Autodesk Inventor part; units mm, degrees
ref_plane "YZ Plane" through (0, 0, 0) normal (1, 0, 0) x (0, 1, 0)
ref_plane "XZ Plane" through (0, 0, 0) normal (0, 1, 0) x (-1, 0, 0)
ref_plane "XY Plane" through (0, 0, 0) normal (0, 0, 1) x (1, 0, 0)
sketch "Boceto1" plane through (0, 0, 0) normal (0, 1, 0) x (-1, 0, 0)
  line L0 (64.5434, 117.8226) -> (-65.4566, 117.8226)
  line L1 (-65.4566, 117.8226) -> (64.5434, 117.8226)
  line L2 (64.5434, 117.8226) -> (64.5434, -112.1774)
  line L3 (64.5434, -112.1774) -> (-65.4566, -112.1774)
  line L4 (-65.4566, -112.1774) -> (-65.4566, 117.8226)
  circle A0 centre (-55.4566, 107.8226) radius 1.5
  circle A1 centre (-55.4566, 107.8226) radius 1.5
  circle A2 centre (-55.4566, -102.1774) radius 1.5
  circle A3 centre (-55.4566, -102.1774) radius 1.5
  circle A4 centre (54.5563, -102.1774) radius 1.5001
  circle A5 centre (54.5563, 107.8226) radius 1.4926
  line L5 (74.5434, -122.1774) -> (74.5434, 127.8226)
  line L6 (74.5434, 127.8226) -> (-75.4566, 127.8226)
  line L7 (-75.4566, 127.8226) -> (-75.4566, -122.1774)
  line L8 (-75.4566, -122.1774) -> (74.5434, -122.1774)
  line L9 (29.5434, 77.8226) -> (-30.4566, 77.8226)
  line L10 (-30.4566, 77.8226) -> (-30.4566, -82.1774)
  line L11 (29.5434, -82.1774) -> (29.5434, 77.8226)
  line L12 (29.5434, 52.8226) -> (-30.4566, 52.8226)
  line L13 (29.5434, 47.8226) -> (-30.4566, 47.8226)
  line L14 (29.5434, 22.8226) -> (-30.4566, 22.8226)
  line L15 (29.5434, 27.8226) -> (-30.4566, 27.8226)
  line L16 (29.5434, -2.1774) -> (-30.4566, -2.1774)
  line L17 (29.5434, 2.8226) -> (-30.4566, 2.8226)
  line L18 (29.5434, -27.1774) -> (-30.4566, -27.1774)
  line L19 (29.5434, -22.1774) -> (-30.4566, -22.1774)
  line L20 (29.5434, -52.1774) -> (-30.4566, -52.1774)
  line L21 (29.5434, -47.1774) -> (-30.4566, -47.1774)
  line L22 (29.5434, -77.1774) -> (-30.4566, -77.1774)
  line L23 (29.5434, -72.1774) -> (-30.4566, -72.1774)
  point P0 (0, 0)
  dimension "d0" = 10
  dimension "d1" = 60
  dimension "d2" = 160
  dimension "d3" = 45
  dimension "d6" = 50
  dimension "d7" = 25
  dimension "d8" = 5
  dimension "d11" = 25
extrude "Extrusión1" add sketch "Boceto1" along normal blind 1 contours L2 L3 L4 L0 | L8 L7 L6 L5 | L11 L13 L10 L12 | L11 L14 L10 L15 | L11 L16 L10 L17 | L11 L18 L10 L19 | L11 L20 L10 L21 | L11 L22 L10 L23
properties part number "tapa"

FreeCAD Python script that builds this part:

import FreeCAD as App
import Part
import Sketcher
from FreeCAD import Vector
Q = App.Units.Quantity

doc = App.newDocument("Part")
body = doc.addObject("PartDesign::Body", "Body")

# Sketch on XZ plane
sketch1 = doc.addObject("Sketcher::SketchObject", "Sketch")
body.addObject(sketch1)
sketch1.AttachmentSupport = (doc.XZ_Plane, [""])
sketch1.MapMode = "FlatFace"
sketch1.addGeometry([
    Part.LineSegment(Vector(75.5, -122.2, 0), Vector(-74.5, -122.2, 0)),  # 0
    Part.LineSegment(Vector(-74.5, -122.2, 0), Vector(-74.5, 127.8, 0)),  # 1
    Part.LineSegment(Vector(-74.5, 127.8, 0), Vector(75.5, 127.8, 0)),  # 2
    Part.LineSegment(Vector(75.5, 127.8, 0), Vector(75.5, -122.2, 0)),  # 3
    Part.Circle(Vector(55.5, -102.2, 0), Vector(0, 0, 1), 1.5),  # 4
    Part.Circle(Vector(-54.6, -102.2, 0), Vector(0, 0, 1), 1.5),  # 5
    Part.LineSegment(Vector(30.5, 77.8, 0), Vector(-29.5, 77.8, 0)),  # 6
    Part.LineSegment(Vector(-29.5, 77.8, 0), Vector(-29.5, 52.8, 0)),  # 7
    Part.LineSegment(Vector(-29.5, 52.8, 0), Vector(30.5, 52.8, 0)),  # 8
    Part.LineSegment(Vector(30.5, 52.8, 0), Vector(30.5, 77.8, 0)),  # 9
    Part.LineSegment(Vector(30.5, 27.8, 0), Vector(30.5, 47.8, 0)),  # 10
    Part.LineSegment(Vector(30.5, 47.8, 0), Vector(-29.5, 47.8, 0)),  # 11
    Part.LineSegment(Vector(-29.5, 47.8, 0), Vector(-29.5, 27.8, 0)),  # 12
    Part.LineSegment(Vector(-29.5, 27.8, 0), Vector(30.5, 27.8, 0)),  # 13
    Part.LineSegment(Vector(30.5, 2.8, 0), Vector(30.5, 22.8, 0)),  # 14
    Part.LineSegment(Vector(30.5, 22.8, 0), Vector(-29.5, 22.8, 0)),  # 15
    Part.LineSegment(Vector(-29.5, 22.8, 0), Vector(-29.5, 2.8, 0)),  # 16
    Part.LineSegment(Vector(-29.5, 2.8, 0), Vector(30.5, 2.8, 0)),  # 17
    Part.LineSegment(Vector(30.5, -22.2, 0), Vector(30.5, -2.2, 0)),  # 18
    Part.LineSegment(Vector(30.5, -2.2, 0), Vector(-29.5, -2.2, 0)),  # 19
    Part.LineSegment(Vector(-29.5, -2.2, 0), Vector(-29.5, -22.2, 0)),  # 20
    Part.LineSegment(Vector(-29.5, -22.2, 0), Vector(30.5, -22.2, 0)),  # 21
    Part.LineSegment(Vector(30.5, -47.2, 0), Vector(30.5, -27.2, 0)),  # 22
    Part.LineSegment(Vector(30.5, -27.2, 0), Vector(-29.5, -27.2, 0)),  # 23
    Part.LineSegment(Vector(-29.5, -27.2, 0), Vector(-29.5, -47.2, 0)),  # 24
    Part.LineSegment(Vector(-29.5, -47.2, 0), Vector(30.5, -47.2, 0)),  # 25
    Part.LineSegment(Vector(30.5, -72.2, 0), Vector(30.5, -52.2, 0)),  # 26
    Part.LineSegment(Vector(30.5, -52.2, 0), Vector(-29.5, -52.2, 0)),  # 27
    Part.LineSegment(Vector(-29.5, -52.2, 0), Vector(-29.5, -72.2, 0)),  # 28
    Part.LineSegment(Vector(-29.5, -72.2, 0), Vector(30.5, -72.2, 0)),  # 29
    Part.Circle(Vector(55.5, 107.8, 0), Vector(0, 0, 1), 1.5),  # 30
    Part.Circle(Vector(-54.6, 107.8, 0), Vector(0, 0, 1), 1.5),  # 31
], False)
sketch1.addConstraint([
    Sketcher.Constraint("Coincident", 0, 2, 1, 1),
    Sketcher.Constraint("Coincident", 1, 2, 2, 1),
    Sketcher.Constraint("Coincident", 2, 2, 3, 1),
    Sketcher.Constraint("Coincident", 3, 2, 0, 1),
    Sketcher.Constraint("Coincident", 6, 2, 7, 1),
    Sketcher.Constraint("Coincident", 7, 2, 8, 1),
    Sketcher.Constraint("Coincident", 8, 2, 9, 1),
    Sketcher.Constraint("Coincident", 9, 2, 6, 1),
    Sketcher.Constraint("Coincident", 10, 2, 11, 1),
    Sketcher.Constraint("Coincident", 11, 2, 12, 1),
    Sketcher.Constraint("Coincident", 12, 2, 13, 1),
    Sketcher.Constraint("Coincident", 13, 2, 10, 1),
    Sketcher.Constraint("Coincident", 14, 2, 15, 1),
    Sketcher.Constraint("Coincident", 15, 2, 16, 1),
    Sketcher.Constraint("Coincident", 16, 2, 17, 1),
    Sketcher.Constraint("Coincident", 17, 2, 14, 1),
    Sketcher.Constraint("Coincident", 18, 2, 19, 1),
    Sketcher.Constraint("Coincident", 19, 2, 20, 1),
    Sketcher.Constraint("Coincident", 20, 2, 21, 1),
    Sketcher.Constraint("Coincident", 21, 2, 18, 1),
    Sketcher.Constraint("Coincident", 22, 2, 23, 1),
    Sketcher.Constraint("Coincident", 23, 2, 24, 1),
    Sketcher.Constraint("Coincident", 24, 2, 25, 1),
    Sketcher.Constraint("Coincident", 25, 2, 22, 1),
    Sketcher.Constraint("Coincident", 26, 2, 27, 1),
    Sketcher.Constraint("Coincident", 27, 2, 28, 1),
    Sketcher.Constraint("Coincident", 28, 2, 29, 1),
    Sketcher.Constraint("Coincident", 29, 2, 26, 1),
    Sketcher.Constraint("Horizontal", 0),
    Sketcher.Constraint("Vertical", 1),
    Sketcher.Constraint("Horizontal", 2),
    Sketcher.Constraint("Vertical", 3),
    Sketcher.Constraint("Horizontal", 6),
    Sketcher.Constraint("Vertical", 7),
    Sketcher.Constraint("Horizontal", 8),
    Sketcher.Constraint("Vertical", 9),
    Sketcher.Constraint("Vertical", 10),
    Sketcher.Constraint("Horizontal", 11),
    Sketcher.Constraint("Vertical", 12),
    Sketcher.Constraint("Horizontal", 13),
    Sketcher.Constraint("Vertical", 14),
    Sketcher.Constraint("Horizontal", 15),
    Sketcher.Constraint("Vertical", 16),
    Sketcher.Constraint("Horizontal", 17),
    Sketcher.Constraint("Vertical", 18),
    Sketcher.Constraint("Horizontal", 19),
    Sketcher.Constraint("Vertical", 20),
    Sketcher.Constraint("Horizontal", 21),
    Sketcher.Constraint("Vertical", 22),
    Sketcher.Constraint("Horizontal", 23),
    Sketcher.Constraint("Vertical", 24),
    Sketcher.Constraint("Horizontal", 25),
    Sketcher.Constraint("Vertical", 26),
    Sketcher.Constraint("Horizontal", 27),
    Sketcher.Constraint("Vertical", 28),
    Sketcher.Constraint("Horizontal", 29),
    Sketcher.Constraint("Equal", 4, 5),
    Sketcher.Constraint("Equal", 5, 30),
    Sketcher.Constraint("Horizontal", 4, 3, 5, 3),
    Sketcher.Constraint("Horizontal", 30, 3, 31, 3),
    Sketcher.Constraint("Vertical", 4, 3, 30, 3),
    Sketcher.Constraint("Vertical", 5, 3, 31, 3),
    Sketcher.Constraint("Vertical", 9, 2, 10, 2),
    Sketcher.Constraint("Vertical", 7, 2, 11, 2),
    Sketcher.Constraint("Vertical", 13, 2, 14, 2),
    Sketcher.Constraint("Vertical", 12, 2, 15, 2),
    Sketcher.Constraint("Vertical", 17, 2, 18, 2),
    Sketcher.Constraint("Vertical", 16, 2, 19, 2),
    Sketcher.Constraint("Vertical", 21, 2, 22, 2),
    Sketcher.Constraint("Vertical", 20, 2, 23, 2),
    Sketcher.Constraint("Vertical", 25, 2, 26, 2),
    Sketcher.Constraint("Vertical", 24, 2, 27, 2),
    Sketcher.Constraint("Equal", 12, 14),
    Sketcher.Constraint("Equal", 16, 18),
    Sketcher.Constraint("Equal", 20, 22),
    Sketcher.Constraint("Equal", 24, 26),
    Sketcher.Constraint("DistanceX", 6, 2, 6, 1, Q("60 mm")),
    Sketcher.Constraint("DistanceY", 7, 2, 7, 1, Q("25 mm")),
    Sketcher.Constraint("Diameter", 4, Q("3 mm")),
    Sketcher.Constraint("DistanceX", 1, 2, 6, 2, Q("45 mm")),
    Sketcher.Constraint("DistanceY", 6, 2, 1, 2, Q("50 mm")),
    Sketcher.Constraint("DistanceX", 8, 2, 30, 3, Q("25 mm")),
    Sketcher.Constraint("DistanceX", 8, 2, 2, 2, Q("45 mm")),
    Sketcher.Constraint("DistanceY", 10, 2, 8, 2, Q("5 mm")),
    Sketcher.Constraint("DistanceY", 10, 2, 30, 3, Q("60 mm")),
    Sketcher.Constraint("DistanceY", 12, 2, 7, 2, Q("25 mm")),
    Sketcher.Constraint("DistanceY", 14, 2, 13, 2, Q("5 mm")),
    Sketcher.Constraint("DistanceY", 18, 2, 17, 2, Q("5 mm")),
    Sketcher.Constraint("DistanceY", 22, 2, 21, 2, Q("5 mm")),
    Sketcher.Constraint("DistanceY", 26, 2, 25, 2, Q("5 mm")),
    Sketcher.Constraint("DistanceY", 1, 1, 1, 2, Q("250 mm")),
    Sketcher.Constraint("DistanceY", 4, 3, 30, 3, Q("210 mm")),
    Sketcher.Constraint("Diameter", 31, Q("2.9852 mm")),
    Sketcher.Constraint("DistanceX", 5, 3, 4, 3, Q("110.013 mm")),
    Sketcher.Constraint("DistanceX", -1, 1, 4, 3, Q("55.4566 mm")),
    Sketcher.Constraint("DistanceY", 4, 3, -1, 1, Q("102.1774 mm")),
])
pad1 = doc.addObject("PartDesign::Pad", "Pad")
body.addObject(pad1)
pad1.Profile = sketch1
pad1.Length = 1
pad1.Reversed = True

doc.recompute()
